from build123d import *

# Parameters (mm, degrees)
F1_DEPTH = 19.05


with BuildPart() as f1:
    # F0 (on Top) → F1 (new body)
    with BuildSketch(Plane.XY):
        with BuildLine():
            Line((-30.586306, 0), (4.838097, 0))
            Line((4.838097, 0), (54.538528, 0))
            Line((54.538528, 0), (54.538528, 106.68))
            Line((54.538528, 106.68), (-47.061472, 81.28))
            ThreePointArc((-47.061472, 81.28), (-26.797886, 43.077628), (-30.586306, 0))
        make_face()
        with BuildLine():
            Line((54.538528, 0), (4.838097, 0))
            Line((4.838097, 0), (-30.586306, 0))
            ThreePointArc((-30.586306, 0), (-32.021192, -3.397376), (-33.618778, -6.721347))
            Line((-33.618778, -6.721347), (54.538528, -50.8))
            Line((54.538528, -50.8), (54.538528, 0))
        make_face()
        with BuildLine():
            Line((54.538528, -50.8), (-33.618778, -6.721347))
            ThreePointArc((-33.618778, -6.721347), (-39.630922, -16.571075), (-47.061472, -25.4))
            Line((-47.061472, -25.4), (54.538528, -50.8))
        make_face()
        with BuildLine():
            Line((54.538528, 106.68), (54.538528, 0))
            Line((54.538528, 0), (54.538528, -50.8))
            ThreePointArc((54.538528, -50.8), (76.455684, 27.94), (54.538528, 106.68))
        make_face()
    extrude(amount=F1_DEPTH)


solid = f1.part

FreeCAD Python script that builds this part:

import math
import FreeCAD as App
import Part
import Sketcher
from FreeCAD import Vector
Q = App.Units.Quantity

doc = App.newDocument("Part")
body = doc.addObject("PartDesign::Body", "Body")

sketch1 = doc.addObject("Sketcher::SketchObject", "Sketch")
body.addObject(sketch1)
sketch1.AttachmentSupport = (doc.XY_Plane, [""])
sketch1.MapMode = "FlatFace"
sketch1.addGeometry([
    Part.LineSegment(Vector(54.538528, 106.68, 0), Vector(-47.061472, 81.28, 0)),
    Part.ArcOfCircle(Part.Circle(Vector(-101.479156, 27.940001, 0), Vector(0, 0, 1), 76.199999), math.radians(-21.510189), math.radians(44.427004)),
    Part.ArcOfCircle(Part.Circle(Vector(-101.478812, 27.939837, 0), Vector(0, 0, 1), 76.199619), math.radians(-27.056793), math.radians(-21.51017)),
    Part.ArcOfCircle(Part.Circle(Vector(-101.479184, 27.940019, 0), Vector(0, 0, 1), 76.200032), math.radians(-44.427), math.radians(-27.056787)),
    Part.LineSegment(Vector(-47.061472, -25.4, 0), Vector(54.538528, -50.8, 0)),
    Part.ArcOfCircle(Part.Circle(Vector(-75.94432, 27.94, 0), Vector(0, 0, 1), 152.400004), math.radians(-31.108922), math.radians(31.108922)),
], False)
sketch1.addConstraint([
    Sketcher.Constraint("Coincident", 0, 2, 1, 2),
    Sketcher.Constraint("Coincident", 1, 1, 2, 2),
    Sketcher.Constraint("Coincident", 2, 1, 3, 2),
    Sketcher.Constraint("Coincident", 3, 1, 4, 1),
    Sketcher.Constraint("Coincident", 4, 2, 5, 1),
    Sketcher.Constraint("Coincident", 5, 2, 0, 1),
    Sketcher.Constraint("PointOnObject", 1, 1, -1),
    Sketcher.Constraint("Radius", 1, Q("2.9999999 in")),
    Sketcher.Constraint("Radius", 5, Q("6.0000002 in")),
    Sketcher.Constraint("DistanceY", 3, 1, -1, 1, Q("1 in")),
    Sketcher.Constraint("DistanceY", 4, 2, -1, 1, Q("2 in")),
    Sketcher.Constraint("DistanceX", 3, 1, 4, 2, Q("4 in")),
    Sketcher.Constraint("DistanceX", 0, 2, 4, 2, Q("4 in")),
    Sketcher.Constraint("DistanceX", 0, 2, 5, 2, Q("4 in")),
    Sketcher.Constraint("DistanceY", 0, 2, 5, 2, Q("1 in")),
    Sketcher.Constraint("DistanceY", -1, 1, 1, 3, Q("1.1 in")),
    Sketcher.Constraint("DistanceY", -1, 1, 5, 3, Q("1.1 in")),
    Sketcher.Constraint("Radius", 2, 76.199619),
    Sketcher.Constraint("Radius", 3, 76.200032),
    Sketcher.Constraint("DistanceX", 2, 3, -1, 1, 101.478812),
    Sketcher.Constraint("DistanceY", -1, 1, 3, 3, 27.940019),
    Sketcher.Constraint("DistanceX", 2, 1, -1, 1, 33.618778),
])
pad1 = doc.addObject("PartDesign::Pad", "Pad")
body.addObject(pad1)
pad1.Profile = sketch1
pad1.Length = Q("0.75 in")

doc.recompute()
